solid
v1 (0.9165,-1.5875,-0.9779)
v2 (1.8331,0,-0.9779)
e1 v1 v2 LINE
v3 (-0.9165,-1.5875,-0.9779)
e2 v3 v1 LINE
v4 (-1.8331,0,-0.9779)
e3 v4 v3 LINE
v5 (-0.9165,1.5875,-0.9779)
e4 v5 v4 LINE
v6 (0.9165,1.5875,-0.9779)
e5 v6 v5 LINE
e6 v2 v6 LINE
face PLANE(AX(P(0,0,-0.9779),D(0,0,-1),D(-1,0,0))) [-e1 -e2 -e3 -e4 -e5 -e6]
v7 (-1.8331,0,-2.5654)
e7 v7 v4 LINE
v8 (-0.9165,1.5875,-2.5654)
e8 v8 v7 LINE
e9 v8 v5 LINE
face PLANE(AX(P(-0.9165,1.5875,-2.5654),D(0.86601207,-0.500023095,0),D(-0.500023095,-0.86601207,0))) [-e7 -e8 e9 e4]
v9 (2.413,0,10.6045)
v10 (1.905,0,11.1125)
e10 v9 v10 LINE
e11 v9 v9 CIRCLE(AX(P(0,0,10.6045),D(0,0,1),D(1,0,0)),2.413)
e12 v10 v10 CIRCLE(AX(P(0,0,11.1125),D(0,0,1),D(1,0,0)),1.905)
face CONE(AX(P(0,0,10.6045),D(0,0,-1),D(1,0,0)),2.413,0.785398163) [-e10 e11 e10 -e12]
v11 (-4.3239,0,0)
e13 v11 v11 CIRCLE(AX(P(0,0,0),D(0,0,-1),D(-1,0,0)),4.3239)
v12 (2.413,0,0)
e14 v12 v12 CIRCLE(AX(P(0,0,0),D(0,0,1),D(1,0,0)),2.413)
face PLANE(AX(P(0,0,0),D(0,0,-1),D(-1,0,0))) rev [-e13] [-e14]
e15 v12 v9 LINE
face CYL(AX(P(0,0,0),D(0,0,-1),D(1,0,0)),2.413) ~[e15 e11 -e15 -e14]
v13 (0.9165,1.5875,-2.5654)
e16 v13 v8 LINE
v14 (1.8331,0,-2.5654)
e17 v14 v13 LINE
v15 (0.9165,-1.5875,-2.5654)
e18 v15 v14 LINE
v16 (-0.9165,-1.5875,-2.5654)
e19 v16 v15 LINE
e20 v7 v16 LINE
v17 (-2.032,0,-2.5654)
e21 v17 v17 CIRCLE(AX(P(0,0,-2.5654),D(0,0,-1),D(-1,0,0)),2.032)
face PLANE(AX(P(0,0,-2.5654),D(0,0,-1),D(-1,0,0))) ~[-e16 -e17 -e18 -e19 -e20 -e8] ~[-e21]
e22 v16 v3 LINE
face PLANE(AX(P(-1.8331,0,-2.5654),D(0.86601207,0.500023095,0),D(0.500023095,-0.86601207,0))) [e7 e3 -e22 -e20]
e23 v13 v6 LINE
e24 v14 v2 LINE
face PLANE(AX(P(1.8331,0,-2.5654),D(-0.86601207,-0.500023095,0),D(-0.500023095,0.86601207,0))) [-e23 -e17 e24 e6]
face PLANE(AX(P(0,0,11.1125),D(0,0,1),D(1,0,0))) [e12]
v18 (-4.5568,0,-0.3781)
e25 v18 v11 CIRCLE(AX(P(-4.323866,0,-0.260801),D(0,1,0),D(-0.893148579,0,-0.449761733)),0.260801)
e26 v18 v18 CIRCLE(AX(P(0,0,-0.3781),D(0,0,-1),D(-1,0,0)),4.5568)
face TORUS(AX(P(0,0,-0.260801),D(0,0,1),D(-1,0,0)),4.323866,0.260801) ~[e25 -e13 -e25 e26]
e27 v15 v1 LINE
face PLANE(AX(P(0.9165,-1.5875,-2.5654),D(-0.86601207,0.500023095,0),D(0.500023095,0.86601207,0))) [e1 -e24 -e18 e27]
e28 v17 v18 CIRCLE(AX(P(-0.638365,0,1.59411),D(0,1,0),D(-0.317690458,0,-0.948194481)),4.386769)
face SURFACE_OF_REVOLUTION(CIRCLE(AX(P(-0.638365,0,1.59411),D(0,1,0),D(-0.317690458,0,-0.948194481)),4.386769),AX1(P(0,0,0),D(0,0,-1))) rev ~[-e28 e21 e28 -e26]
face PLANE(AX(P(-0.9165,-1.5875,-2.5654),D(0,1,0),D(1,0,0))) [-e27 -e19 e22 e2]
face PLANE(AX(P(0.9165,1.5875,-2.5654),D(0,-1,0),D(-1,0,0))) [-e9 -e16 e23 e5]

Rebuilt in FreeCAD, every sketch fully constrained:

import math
import FreeCAD as App
import Part
import Sketcher
Q = App.Units.Quantity


def edges_at(feature, points):
    """Names of the edges that pass closest to the given points."""
    edges = feature.Shape.Edges
    near = lambda p: min(range(len(edges)), key=lambda i: edges[i].distToShape(Part.Vertex(*p))[0])
    return sorted({f"Edge{near(p) + 1}" for p in points})


def add_polygon(sketch, points):
    """Adds a closed chain of lines whose ends are joined by coincident constraints."""
    first, n = sketch.GeometryCount, len(points)
    for a, b in zip(points, points[1:] + points[:1]):
        sketch.addGeometry(Part.LineSegment(App.Vector(*a, 0), App.Vector(*b, 0)), False)
    for i in range(n):
        sketch.addConstraint(Sketcher.Constraint("Coincident", first + i, 2, first + (i + 1) % n, 1))

doc = App.newDocument("Part")
body = doc.addObject("PartDesign::Body", "Body")

# Sketch on XY plane
sketch1 = body.newObject("Sketcher::SketchObject", "Sketch")
sketch1.AttachmentSupport = (doc.getObject("XY_Plane"), [""])
sketch1.MapMode = "FlatFace"
sketch1.addGeometry(Part.Circle(App.Vector(0, 0, 0), App.Vector(0, 0, 1), 2.4), False)
sketch1.addConstraint(Sketcher.Constraint("Coincident", 0, 3, -1, 1))
sketch1.addConstraint(Sketcher.Constraint("Diameter", 0, Q("0.19 in")))
pad1 = body.newObject("PartDesign::Pad", "Pad")
pad1.Profile = sketch1
pad1.Length = Q("0.4375 in")

# Sketch on XZ plane
sketch2 = body.newObject("Sketcher::SketchObject", "Sketch001")
sketch2.AttachmentSupport = (doc.getObject("XZ_Plane"), [""])
sketch2.MapMode = "FlatFace"
sketch2.addGeometry(Part.LineSegment(App.Vector(-4.32, 0, 0), App.Vector(0, 0, 0)), False)
sketch2.addGeometry(Part.LineSegment(App.Vector(0, 0, 0), App.Vector(0, -2.57, 0)), False)
sketch2.addGeometry(Part.LineSegment(App.Vector(0, -2.57, 0), App.Vector(-2.03, -2.57, 0)), False)
sketch2.addGeometry(Part.ArcOfCircle(Part.Circle(App.Vector(-0.64, 1.59, 0), App.Vector(0, 0, 1), 4.39), math.radians(-153), math.radians(-109)), False)
sketch2.addGeometry(Part.ArcOfCircle(Part.Circle(App.Vector(-4.32, -0.26, 0), App.Vector(0, 0, 1), 0.26), math.radians(90), math.radians(207)), False)
sketch2.addConstraint(Sketcher.Constraint("Coincident", 0, 2, 1, 1))
sketch2.addConstraint(Sketcher.Constraint("Coincident", 1, 2, 2, 1))
sketch2.addConstraint(Sketcher.Constraint("Coincident", 2, 2, 3, 2))
sketch2.addConstraint(Sketcher.Constraint("Tangent", 3, 1, 4, 2))
sketch2.addConstraint(Sketcher.Constraint("Tangent", 4, 1, 0, 1))
sketch2.addConstraint(Sketcher.Constraint("Horizontal", 0))
sketch2.addConstraint(Sketcher.Constraint("Vertical", 1))
sketch2.addConstraint(Sketcher.Constraint("Horizontal", 2))
sketch2.addConstraint(Sketcher.Constraint("Coincident", 0, 2, -1, 1))
sketch2.addConstraint(Sketcher.Constraint("DistanceX", 2, 2, 2, 1, Q("0.08 in")))
sketch2.addConstraint(Sketcher.Constraint("DistanceY", 1, 2, 1, 1, Q("0.101 in")))
sketch2.addConstraint(Sketcher.Constraint("Radius", 3, Q("4.387 mm")))
sketch2.addConstraint(Sketcher.Constraint("Radius", 4, Q("0.2608 mm")))
sketch2.addConstraint(Sketcher.Constraint("DistanceX", 0, 1, 0, 2, Q("4.324 mm")))
revolution = body.newObject("PartDesign::Revolution", "Revolution")
revolution.Profile = sketch2
revolution.ReferenceAxis = (sketch2, ["V_Axis"])
revolution.Angle = 360

# Sketch on XY plane
sketch3 = body.newObject("Sketcher::SketchObject", "Sketch002")
sketch3.AttachmentSupport = (doc.getObject("XY_Plane"), [""])
sketch3.MapMode = "FlatFace"
sketch3.AttachmentOffset = App.Placement(App.Vector(0, 0, -0.101 * 25.4), App.Rotation())
add_polygon(sketch3, [(-0.9, 1.6), (0.9, 1.6), (1.8, 0), (0.9, -1.6), (-0.9, -1.6), (-1.8, 0)])  # lines 0-5
sketch3.addConstraint(Sketcher.Constraint("Horizontal", 0))
sketch3.addConstraint(Sketcher.Constraint("Horizontal", 3))
sketch3.addConstraint(Sketcher.Constraint("Symmetric", 0, 2, 3, 2, -1, 1))
sketch3.addConstraint(Sketcher.Constraint("Symmetric", 1, 2, 4, 2, -1, 1))
sketch3.addConstraint(Sketcher.Constraint("PointOnObject", 1, 2, -1))
sketch3.addConstraint(Sketcher.Constraint("Parallel", 2, 5))
sketch3.addConstraint(Sketcher.Constraint("Vertical", 0, 2, 2, 2))
sketch3.addConstraint(Sketcher.Constraint("DistanceY", 2, 2, 0, 2, Q("0.125 in")))
sketch3.addConstraint(Sketcher.Constraint("DistanceX", 0, 1, 0, 2, Q("1.833 mm")))
sketch3.addConstraint(Sketcher.Constraint("Distance", 1, Q("1.833 mm")))
pocket1 = body.newObject("PartDesign::Pocket", "Pocket")
pocket1.Profile = sketch3
pocket1.Length = Q("0.0625 in")
pocket1.Reversed = True
doc.recompute()

chamfer = body.newObject("PartDesign::Chamfer", "Chamfer")
chamfer.Base = (pocket1, edges_at(pocket1, [(-2.413, 0, 11.113)]))
chamfer.Size = Q("0.02 in")

doc.recompute()
